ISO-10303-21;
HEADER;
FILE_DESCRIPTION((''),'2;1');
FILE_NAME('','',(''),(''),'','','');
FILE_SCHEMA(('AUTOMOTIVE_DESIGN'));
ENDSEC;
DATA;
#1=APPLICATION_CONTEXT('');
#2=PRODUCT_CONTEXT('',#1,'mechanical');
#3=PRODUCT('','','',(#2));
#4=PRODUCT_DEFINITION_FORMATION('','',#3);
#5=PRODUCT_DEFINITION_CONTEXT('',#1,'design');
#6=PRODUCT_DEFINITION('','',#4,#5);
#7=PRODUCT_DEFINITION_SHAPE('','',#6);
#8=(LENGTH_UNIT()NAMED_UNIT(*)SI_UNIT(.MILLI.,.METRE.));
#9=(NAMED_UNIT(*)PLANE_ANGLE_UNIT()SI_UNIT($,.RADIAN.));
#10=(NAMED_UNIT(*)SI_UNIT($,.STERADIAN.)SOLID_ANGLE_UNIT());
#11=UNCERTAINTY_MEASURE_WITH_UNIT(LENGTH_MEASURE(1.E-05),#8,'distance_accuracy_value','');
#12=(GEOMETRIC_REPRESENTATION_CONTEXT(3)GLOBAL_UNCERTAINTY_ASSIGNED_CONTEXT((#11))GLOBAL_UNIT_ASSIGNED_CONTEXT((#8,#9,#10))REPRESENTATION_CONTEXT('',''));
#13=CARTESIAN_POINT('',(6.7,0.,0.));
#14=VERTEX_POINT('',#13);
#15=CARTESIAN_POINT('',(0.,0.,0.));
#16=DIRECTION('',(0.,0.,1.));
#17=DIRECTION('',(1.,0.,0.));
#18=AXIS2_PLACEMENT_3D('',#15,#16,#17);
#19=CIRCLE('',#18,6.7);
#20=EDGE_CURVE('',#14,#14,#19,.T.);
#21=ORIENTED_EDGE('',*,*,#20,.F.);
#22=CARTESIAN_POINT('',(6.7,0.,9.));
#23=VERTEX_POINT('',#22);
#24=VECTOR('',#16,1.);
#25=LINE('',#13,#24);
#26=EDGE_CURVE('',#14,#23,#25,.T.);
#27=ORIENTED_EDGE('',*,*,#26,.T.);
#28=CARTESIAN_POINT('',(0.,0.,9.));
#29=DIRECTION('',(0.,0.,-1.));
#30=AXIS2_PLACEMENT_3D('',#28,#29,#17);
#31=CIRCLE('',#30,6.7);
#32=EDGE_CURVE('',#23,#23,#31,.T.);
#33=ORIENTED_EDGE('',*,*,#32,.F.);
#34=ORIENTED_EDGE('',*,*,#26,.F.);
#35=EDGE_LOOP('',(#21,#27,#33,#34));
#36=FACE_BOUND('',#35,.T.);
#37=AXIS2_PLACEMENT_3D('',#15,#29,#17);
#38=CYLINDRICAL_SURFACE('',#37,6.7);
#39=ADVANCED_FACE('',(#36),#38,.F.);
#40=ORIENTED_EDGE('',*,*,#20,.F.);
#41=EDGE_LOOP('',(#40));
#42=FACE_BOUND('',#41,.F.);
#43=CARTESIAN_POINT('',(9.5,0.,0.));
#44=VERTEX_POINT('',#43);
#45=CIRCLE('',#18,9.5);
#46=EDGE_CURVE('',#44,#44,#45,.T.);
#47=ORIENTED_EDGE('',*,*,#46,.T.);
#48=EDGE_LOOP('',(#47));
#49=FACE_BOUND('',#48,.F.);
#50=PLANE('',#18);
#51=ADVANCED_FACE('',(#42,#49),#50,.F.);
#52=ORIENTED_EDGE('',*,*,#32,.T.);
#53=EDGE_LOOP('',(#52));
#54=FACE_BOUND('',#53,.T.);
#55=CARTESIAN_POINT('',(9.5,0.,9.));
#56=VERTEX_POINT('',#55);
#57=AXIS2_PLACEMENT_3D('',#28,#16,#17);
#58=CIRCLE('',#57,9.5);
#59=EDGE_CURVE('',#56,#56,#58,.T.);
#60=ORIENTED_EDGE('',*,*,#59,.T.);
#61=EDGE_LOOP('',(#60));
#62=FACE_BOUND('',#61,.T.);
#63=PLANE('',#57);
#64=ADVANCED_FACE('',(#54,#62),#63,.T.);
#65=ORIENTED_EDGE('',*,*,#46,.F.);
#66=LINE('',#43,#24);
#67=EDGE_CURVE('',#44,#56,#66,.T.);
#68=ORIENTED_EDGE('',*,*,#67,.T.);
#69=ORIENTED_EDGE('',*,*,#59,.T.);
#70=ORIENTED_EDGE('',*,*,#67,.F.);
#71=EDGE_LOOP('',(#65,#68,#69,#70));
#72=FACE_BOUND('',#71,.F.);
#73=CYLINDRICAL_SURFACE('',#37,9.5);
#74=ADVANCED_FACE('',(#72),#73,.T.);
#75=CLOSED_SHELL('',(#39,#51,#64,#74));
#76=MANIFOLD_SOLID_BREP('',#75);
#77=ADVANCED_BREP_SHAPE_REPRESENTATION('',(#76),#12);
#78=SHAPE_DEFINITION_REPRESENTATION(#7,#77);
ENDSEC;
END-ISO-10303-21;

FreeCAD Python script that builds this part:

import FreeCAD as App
import Part
import Sketcher

doc = App.newDocument("Part")
body = doc.addObject("PartDesign::Body", "Body")

sketch1 = body.newObject("Sketcher::SketchObject", "Sketch")
sketch1.AttachmentSupport = (doc.getObject("XY_Plane"), [""])
sketch1.MapMode = "FlatFace"
sketch1.addGeometry(Part.Circle(App.Vector(0, 0, 0), App.Vector(0, 0, 1), 6.7), False)
sketch1.addConstraint([
    Sketcher.Constraint("Coincident", 0, 3, -1, 1),
    Sketcher.Constraint("Diameter", 0, 13.4),
])
pad1 = body.newObject("PartDesign::Pad", "Pad")
pad1.Profile = sketch1
pad1.Length = 10
body2 = doc.addObject("PartDesign::Body", "Body001")

sketch2 = body2.newObject("Sketcher::SketchObject", "Sketch001")
sketch2.AttachmentSupport = (doc.getObject("XY_Plane001"), [""])
sketch2.MapMode = "FlatFace"
sketch2.addGeometry(Part.Circle(App.Vector(0, 0, 0), App.Vector(0, 0, 1), 9.5), False)
sketch2.addConstraint([
    Sketcher.Constraint("Coincident", 0, 3, -1, 1),
    Sketcher.Constraint("Diameter", 0, 19.0),
])
pad2 = body2.newObject("PartDesign::Pad", "Pad001")
pad2.Profile = sketch2
pad2.Length = 9
doc.recompute()

boolean = body2.newObject("PartDesign::Boolean", "Boolean")
boolean.Type = "Cut"
boolean.addObjects([body])

doc.recompute()
